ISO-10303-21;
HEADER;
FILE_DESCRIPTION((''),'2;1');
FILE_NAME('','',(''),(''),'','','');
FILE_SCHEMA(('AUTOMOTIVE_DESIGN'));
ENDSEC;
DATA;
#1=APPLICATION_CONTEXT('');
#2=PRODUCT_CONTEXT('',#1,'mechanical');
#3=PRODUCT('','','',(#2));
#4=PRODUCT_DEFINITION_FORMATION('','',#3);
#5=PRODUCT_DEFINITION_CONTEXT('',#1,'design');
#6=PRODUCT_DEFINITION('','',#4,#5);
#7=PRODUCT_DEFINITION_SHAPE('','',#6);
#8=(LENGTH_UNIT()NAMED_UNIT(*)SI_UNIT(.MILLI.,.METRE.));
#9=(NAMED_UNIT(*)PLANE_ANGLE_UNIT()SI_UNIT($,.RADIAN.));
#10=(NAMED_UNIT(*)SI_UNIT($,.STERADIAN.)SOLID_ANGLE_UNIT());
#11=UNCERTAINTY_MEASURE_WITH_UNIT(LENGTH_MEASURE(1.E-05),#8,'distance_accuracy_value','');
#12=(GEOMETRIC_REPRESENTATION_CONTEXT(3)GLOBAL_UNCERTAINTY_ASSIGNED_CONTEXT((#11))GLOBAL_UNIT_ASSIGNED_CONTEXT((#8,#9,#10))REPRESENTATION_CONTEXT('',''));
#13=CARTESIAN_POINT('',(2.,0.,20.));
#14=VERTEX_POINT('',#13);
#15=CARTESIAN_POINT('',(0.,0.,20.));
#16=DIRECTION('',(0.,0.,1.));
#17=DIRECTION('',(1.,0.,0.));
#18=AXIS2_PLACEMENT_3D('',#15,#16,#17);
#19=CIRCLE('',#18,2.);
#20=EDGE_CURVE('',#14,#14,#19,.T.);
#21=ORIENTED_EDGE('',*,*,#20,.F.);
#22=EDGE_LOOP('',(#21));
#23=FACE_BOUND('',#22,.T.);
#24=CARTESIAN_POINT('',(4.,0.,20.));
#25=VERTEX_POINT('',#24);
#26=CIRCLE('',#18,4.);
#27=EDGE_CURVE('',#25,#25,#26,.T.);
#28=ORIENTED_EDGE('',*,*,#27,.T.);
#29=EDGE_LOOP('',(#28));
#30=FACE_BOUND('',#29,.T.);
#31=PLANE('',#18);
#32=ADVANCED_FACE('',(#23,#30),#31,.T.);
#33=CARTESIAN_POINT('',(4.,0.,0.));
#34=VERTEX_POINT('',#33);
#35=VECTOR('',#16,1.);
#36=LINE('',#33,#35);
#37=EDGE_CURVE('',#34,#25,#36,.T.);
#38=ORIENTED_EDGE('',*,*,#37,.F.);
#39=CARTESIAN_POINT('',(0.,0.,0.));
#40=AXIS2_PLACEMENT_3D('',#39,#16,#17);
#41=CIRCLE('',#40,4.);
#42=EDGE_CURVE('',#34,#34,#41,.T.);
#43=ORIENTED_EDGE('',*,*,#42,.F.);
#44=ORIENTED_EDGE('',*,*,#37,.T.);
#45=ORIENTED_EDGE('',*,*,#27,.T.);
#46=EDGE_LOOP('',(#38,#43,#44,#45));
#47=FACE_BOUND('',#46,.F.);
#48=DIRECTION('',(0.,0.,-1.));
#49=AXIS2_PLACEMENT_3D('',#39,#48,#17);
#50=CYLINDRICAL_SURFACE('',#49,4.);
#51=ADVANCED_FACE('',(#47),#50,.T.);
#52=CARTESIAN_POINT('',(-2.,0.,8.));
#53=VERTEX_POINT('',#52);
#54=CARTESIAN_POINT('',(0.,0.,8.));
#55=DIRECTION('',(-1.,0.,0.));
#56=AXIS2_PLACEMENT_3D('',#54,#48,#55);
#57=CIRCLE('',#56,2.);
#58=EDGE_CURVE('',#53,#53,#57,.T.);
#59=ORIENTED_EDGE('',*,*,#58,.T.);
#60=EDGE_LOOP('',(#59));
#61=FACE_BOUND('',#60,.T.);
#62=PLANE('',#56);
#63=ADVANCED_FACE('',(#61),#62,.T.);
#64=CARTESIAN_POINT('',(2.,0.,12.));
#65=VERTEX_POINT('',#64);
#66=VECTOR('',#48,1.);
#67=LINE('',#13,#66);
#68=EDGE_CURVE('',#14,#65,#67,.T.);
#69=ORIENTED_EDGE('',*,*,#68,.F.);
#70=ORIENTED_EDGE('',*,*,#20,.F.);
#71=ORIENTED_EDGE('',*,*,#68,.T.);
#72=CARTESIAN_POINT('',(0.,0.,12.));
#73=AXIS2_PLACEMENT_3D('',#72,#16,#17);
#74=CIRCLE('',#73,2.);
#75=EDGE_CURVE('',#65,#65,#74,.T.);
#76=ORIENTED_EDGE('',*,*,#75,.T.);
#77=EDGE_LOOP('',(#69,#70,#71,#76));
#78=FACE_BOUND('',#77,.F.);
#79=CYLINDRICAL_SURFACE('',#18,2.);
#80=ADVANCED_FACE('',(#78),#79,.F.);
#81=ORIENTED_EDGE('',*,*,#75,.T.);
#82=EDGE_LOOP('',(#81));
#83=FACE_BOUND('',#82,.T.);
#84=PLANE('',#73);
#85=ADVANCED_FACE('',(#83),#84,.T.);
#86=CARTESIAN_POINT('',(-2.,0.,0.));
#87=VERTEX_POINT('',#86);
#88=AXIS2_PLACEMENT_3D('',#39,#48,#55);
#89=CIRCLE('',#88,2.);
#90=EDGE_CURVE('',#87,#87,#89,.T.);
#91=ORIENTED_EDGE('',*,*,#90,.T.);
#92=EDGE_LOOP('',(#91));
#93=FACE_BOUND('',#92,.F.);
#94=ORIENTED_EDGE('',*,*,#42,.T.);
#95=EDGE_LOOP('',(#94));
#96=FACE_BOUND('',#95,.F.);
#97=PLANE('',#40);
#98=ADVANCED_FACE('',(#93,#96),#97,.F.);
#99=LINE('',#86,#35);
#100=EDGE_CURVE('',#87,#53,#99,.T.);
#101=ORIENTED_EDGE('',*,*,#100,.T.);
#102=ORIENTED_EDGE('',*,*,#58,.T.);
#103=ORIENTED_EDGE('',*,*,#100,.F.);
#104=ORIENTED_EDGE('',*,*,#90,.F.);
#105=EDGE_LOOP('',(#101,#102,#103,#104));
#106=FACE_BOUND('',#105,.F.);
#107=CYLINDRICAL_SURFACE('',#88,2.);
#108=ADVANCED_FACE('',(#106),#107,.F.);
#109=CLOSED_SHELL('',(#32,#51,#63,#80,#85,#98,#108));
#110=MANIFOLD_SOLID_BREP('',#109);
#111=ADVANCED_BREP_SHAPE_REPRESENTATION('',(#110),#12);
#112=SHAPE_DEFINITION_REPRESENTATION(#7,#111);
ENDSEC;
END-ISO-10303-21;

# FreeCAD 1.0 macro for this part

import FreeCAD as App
import Part
import Sketcher

V = App.Vector

doc = App.newDocument("Part")
body = doc.addObject("PartDesign::Body", "Body")

sketch1 = body.newObject("Sketcher::SketchObject", "Sketch")
sketch1.AttachmentSupport = (doc.getObject("XY_Plane"), [""])
sketch1.MapMode = "FlatFace"
sketch1.addGeometry(Part.Circle(V(0, 0, 0), V(0, 0, 1), 4), False)
sketch1.addConstraint([
    Sketcher.Constraint("Coincident", 0, 3, -1, 1),
    Sketcher.Constraint("Diameter", 0, 8.0),
])
pad1 = body.newObject("PartDesign::Pad", "Pad")
pad1.Profile = sketch1
pad1.Length = 20

sketch2 = body.newObject("Sketcher::SketchObject", "Sketch001")
sketch2.AttachmentSupport = (doc.getObject("XY_Plane"), [""])
sketch2.MapMode = "FlatFace"
sketch2.addGeometry(Part.Circle(V(0, 0, 0), V(0, 0, 1), 2), False)
sketch2.addConstraint([
    Sketcher.Constraint("Coincident", 0, 3, -1, 1),
    Sketcher.Constraint("Diameter", 0, 4.0),
])
pocket1 = body.newObject("PartDesign::Pocket", "Pocket")
pocket1.Profile = sketch2
pocket1.Length = 8
pocket1.Reversed = True

sketch3 = body.newObject("Sketcher::SketchObject", "Sketch002")
sketch3.AttachmentSupport = (doc.getObject("XY_Plane"), [""])
sketch3.MapMode = "FlatFace"
sketch3.AttachmentOffset = App.Placement(V(0, 0, 20), App.Rotation())
sketch3.addGeometry(Part.Circle(V(0, 0, 0), V(0, 0, 1), 2), False)
sketch3.addConstraint([
    Sketcher.Constraint("Coincident", 0, 3, -1, 1),
    Sketcher.Constraint("Diameter", 0, 4.0),
])
pocket2 = body.newObject("PartDesign::Pocket", "Pocket001")
pocket2.Profile = sketch3
pocket2.Length = 8

doc.recompute()
